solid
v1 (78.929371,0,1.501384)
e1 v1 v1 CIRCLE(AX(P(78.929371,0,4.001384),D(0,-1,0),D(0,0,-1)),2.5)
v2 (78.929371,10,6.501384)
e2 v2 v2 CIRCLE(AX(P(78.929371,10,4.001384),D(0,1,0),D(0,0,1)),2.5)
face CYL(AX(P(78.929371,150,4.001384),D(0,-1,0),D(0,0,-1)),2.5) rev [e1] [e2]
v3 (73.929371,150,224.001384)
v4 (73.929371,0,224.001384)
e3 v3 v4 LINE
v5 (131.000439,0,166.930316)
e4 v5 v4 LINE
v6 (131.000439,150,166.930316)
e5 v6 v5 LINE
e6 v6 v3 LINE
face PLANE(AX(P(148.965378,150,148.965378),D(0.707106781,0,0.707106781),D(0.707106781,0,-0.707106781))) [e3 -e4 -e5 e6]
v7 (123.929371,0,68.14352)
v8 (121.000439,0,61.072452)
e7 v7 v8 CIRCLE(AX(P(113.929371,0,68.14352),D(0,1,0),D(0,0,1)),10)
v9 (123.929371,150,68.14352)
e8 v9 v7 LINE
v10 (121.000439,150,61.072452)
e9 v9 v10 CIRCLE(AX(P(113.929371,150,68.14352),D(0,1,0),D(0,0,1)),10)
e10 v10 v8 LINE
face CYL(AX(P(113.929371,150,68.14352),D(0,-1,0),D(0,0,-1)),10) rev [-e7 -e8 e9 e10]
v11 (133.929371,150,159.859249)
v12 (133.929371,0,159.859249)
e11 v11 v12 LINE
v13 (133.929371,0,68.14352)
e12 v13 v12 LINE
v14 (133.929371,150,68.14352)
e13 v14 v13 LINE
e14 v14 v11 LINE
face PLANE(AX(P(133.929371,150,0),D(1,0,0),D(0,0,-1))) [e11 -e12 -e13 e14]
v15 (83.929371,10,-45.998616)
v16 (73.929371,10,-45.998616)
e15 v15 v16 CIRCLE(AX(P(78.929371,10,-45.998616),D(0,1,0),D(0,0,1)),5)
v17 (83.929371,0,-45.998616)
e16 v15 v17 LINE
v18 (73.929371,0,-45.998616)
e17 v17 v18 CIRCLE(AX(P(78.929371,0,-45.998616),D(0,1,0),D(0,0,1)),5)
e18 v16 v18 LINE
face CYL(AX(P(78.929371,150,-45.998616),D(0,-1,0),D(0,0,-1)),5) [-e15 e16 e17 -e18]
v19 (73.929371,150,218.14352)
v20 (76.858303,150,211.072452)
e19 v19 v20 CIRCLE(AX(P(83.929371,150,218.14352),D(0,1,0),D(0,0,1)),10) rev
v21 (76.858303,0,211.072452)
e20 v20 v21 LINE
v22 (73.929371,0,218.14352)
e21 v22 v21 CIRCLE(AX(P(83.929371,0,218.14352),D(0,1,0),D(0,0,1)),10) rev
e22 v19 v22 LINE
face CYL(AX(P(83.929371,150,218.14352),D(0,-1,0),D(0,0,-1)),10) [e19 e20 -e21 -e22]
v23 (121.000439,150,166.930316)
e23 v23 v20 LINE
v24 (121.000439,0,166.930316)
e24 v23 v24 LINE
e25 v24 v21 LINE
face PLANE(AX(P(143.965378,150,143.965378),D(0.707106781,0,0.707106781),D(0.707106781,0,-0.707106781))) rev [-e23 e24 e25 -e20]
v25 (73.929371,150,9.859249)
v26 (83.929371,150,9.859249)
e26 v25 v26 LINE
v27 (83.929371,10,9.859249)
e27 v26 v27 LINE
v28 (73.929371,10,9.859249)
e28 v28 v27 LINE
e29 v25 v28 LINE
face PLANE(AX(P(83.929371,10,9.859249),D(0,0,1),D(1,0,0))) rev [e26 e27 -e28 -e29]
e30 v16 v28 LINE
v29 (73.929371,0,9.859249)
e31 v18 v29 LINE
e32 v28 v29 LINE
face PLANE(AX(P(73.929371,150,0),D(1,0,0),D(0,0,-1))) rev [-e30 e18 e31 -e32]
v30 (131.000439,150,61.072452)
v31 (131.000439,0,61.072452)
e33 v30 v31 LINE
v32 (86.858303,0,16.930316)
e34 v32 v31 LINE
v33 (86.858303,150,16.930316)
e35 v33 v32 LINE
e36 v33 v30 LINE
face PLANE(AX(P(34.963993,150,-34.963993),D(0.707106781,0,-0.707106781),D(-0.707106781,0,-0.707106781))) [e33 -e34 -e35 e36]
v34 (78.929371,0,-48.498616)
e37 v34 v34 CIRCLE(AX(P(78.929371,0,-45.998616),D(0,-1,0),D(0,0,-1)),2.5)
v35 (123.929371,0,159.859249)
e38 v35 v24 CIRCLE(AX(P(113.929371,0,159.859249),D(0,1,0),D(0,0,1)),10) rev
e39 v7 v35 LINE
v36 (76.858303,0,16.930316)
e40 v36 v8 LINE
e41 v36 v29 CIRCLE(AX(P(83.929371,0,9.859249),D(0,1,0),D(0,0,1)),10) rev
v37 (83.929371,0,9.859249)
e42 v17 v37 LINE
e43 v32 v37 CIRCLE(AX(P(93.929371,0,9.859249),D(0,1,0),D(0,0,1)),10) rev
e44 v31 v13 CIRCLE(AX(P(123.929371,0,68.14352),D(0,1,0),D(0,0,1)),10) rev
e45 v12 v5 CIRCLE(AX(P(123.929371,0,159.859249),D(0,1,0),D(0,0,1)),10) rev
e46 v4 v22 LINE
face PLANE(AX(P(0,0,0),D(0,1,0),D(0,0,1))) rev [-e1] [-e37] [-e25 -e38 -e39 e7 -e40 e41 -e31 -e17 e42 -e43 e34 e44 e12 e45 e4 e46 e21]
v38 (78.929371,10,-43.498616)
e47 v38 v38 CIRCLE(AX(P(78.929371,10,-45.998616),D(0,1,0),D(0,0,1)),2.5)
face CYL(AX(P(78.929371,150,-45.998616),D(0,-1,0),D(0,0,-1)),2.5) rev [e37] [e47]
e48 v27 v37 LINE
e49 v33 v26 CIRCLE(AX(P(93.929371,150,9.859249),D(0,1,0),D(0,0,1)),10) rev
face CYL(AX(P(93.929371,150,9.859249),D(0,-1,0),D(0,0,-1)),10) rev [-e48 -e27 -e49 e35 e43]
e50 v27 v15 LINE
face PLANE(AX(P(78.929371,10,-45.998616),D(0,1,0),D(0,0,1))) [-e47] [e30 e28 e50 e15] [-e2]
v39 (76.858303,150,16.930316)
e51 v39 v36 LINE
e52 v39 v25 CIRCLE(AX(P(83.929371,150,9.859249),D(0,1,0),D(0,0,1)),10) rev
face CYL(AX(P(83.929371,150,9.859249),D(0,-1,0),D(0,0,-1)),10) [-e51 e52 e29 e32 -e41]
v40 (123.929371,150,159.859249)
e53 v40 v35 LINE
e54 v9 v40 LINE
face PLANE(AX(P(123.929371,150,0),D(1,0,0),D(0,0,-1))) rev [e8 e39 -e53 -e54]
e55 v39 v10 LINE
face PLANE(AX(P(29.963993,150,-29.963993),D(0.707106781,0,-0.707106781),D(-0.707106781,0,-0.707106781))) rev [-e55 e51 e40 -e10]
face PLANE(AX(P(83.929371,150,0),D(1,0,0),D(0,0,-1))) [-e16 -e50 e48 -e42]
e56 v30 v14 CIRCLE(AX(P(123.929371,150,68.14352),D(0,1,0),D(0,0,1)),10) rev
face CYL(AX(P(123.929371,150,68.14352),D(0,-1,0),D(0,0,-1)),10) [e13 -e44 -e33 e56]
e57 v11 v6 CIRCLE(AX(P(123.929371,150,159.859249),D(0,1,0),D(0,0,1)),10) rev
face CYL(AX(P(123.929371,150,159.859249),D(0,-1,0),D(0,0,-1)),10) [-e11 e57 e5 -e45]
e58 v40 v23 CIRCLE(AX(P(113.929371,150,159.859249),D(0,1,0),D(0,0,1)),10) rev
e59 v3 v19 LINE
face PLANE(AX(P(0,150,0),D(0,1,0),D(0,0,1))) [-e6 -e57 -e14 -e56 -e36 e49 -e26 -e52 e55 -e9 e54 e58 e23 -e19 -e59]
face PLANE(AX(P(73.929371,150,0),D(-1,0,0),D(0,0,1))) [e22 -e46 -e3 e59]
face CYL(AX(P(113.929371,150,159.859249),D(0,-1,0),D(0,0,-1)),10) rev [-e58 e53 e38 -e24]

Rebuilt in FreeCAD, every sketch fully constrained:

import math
import FreeCAD as App
import Part
import Sketcher
from FreeCAD import Vector
Q = App.Units.Quantity

doc = App.newDocument("Part")
body = doc.addObject("PartDesign::Body", "Body")

sketch1 = doc.addObject("Sketcher::SketchObject", "Sketch")
body.addObject(sketch1)
sketch1.AttachmentSupport = (doc.XZ_Plane, [""])
sketch1.MapMode = "FlatFace"
sketch1.addGeometry([
    Part.ArcOfCircle(Part.Circle(Vector(78.929371, -45.998616, 0), Vector(0, 0, 1), 5), math.radians(180), math.radians(360)),
    Part.LineSegment(Vector(73.929371, -45.998616, 0), Vector(73.929371, 9.859249, 0)),
    Part.ArcOfCircle(Part.Circle(Vector(83.929371, 9.859249, 0), Vector(0, 0, 1), 10), math.radians(135), math.radians(180)),
    Part.LineSegment(Vector(76.858303, 16.930316, 0), Vector(121.000439, 61.072452, 0)),
    Part.ArcOfCircle(Part.Circle(Vector(113.929371, 68.14352, 0), Vector(0, 0, 1), 10), math.radians(-45), math.radians(0)),
    Part.LineSegment(Vector(123.929371, 68.14352, 0), Vector(123.929371, 159.859249, 0)),
    Part.ArcOfCircle(Part.Circle(Vector(113.929371, 159.859249, 0), Vector(0, 0, 1), 10), math.radians(0), math.radians(45)),
    Part.LineSegment(Vector(121.000439, 166.930316, 0), Vector(76.858303, 211.072452, 0)),
    Part.ArcOfCircle(Part.Circle(Vector(83.929371, 218.14352, 0), Vector(0, 0, 1), 10), math.radians(180), math.radians(225)),
    Part.LineSegment(Vector(73.929371, 218.14352, 0), Vector(73.929371, 224.001384, 0)),
    Part.LineSegment(Vector(73.929371, 224.001384, 0), Vector(131.000439, 166.930316, 0)),
    Part.ArcOfCircle(Part.Circle(Vector(123.929371, 159.859249, 0), Vector(0, 0, 1), 10), math.radians(0), math.radians(45)),
    Part.LineSegment(Vector(133.929371, 159.859249, 0), Vector(133.929371, 68.14352, 0)),
    Part.ArcOfCircle(Part.Circle(Vector(123.929371, 68.14352, 0), Vector(0, 0, 1), 10), math.radians(-45), math.radians(0)),
    Part.LineSegment(Vector(131.000439, 61.072452, 0), Vector(86.858303, 16.930316, 0)),
    Part.ArcOfCircle(Part.Circle(Vector(93.929371, 9.859249, 0), Vector(0, 0, 1), 10), math.radians(135), math.radians(180)),
    Part.LineSegment(Vector(83.929371, 9.859249, 0), Vector(83.929371, -45.998616, 0)),
], False)
sketch1.addConstraint([
    Sketcher.Constraint("Tangent", 0, 1, 1, 1),
    Sketcher.Constraint("Tangent", 1, 2, 2, 2),
    Sketcher.Constraint("Tangent", 2, 1, 3, 1),
    Sketcher.Constraint("Tangent", 3, 2, 4, 1),
    Sketcher.Constraint("Tangent", 4, 2, 5, 1),
    Sketcher.Constraint("Tangent", 5, 2, 6, 1),
    Sketcher.Constraint("Tangent", 6, 2, 7, 1),
    Sketcher.Constraint("Tangent", 7, 2, 8, 2),
    Sketcher.Constraint("Tangent", 8, 1, 9, 1),
    Sketcher.Constraint("Coincident", 9, 2, 10, 1),
    Sketcher.Constraint("Tangent", 10, 2, 11, 2),
    Sketcher.Constraint("Tangent", 11, 1, 12, 1),
    Sketcher.Constraint("Tangent", 12, 2, 13, 2),
    Sketcher.Constraint("Tangent", 13, 1, 14, 1),
    Sketcher.Constraint("Tangent", 14, 2, 15, 1),
    Sketcher.Constraint("Tangent", 15, 2, 16, 1),
    Sketcher.Constraint("Tangent", 16, 2, 0, 2),
    Sketcher.Constraint("Vertical", 1),
    Sketcher.Constraint("Vertical", 5),
    Sketcher.Constraint("Vertical", 9),
    Sketcher.Constraint("Vertical", 12),
    Sketcher.Constraint("Vertical", 16),
    Sketcher.Constraint("Coincident", 4, 2, 13, 3),
    Sketcher.Constraint("Coincident", 5, 2, 11, 3),
    Sketcher.Constraint("Coincident", 15, 2, 2, 3),
    Sketcher.Constraint("Equal", 2, 4),
    Sketcher.Constraint("Equal", 4, 6),
    Sketcher.Constraint("Equal", 6, 8),
    Sketcher.Constraint("Equal", 8, 11),
    Sketcher.Constraint("Equal", 13, 15),
    Sketcher.Constraint("Perpendicular", 3, 7),
    Sketcher.Constraint("Parallel", 7, 10),
    Sketcher.Constraint("Vertical", 2, 3, 8, 3),
    Sketcher.Constraint("Vertical", 3, 2, 6, 2),
    Sketcher.Constraint("Radius", 0, Q("5 mm")),
    Sketcher.Constraint("DistanceX", 2, 3, 4, 3, Q("30 mm")),
    Sketcher.Constraint("DistanceY", 2, 3, 6, 3, Q("150 mm")),
    Sketcher.Constraint("DistanceY", 1, 1, 1, 2, Q("55.857864 mm")),
    Sketcher.Constraint("DistanceX", -1, 1, 0, 3, Q("78.929371 mm")),
    Sketcher.Constraint("DistanceY", -1, 1, 2, 3, Q("9.859249 mm")),
])
pad1 = doc.addObject("PartDesign::Pad", "Pad")
body.addObject(pad1)
pad1.Profile = sketch1
pad1.Length = 150
pad1.Reversed = True

sketch2 = doc.addObject("Sketcher::SketchObject", "Sketch001")
body.addObject(sketch2)
sketch2.AttachmentSupport = (doc.XZ_Plane, [""])
sketch2.MapMode = "FlatFace"
sketch2.AttachmentOffset = App.Placement(Vector(0, 0, -10), App.Rotation())
sketch2.addGeometry([
    Part.LineSegment(Vector(73.929371, 9.859249, 0), Vector(83.929371, 9.859249, 0)),
    Part.LineSegment(Vector(83.929371, 9.859249, 0), Vector(83.929371, -45.998616, 0)),
    Part.ArcOfCircle(Part.Circle(Vector(78.929371, -45.998616, 0), Vector(0, 0, 1), 5), math.radians(180), math.radians(360)),
    Part.LineSegment(Vector(73.929371, -45.998616, 0), Vector(73.929371, 9.859249, 0)),
], False)
sketch2.addConstraint([
    Sketcher.Constraint("Coincident", 0, 2, 1, 1),
    Sketcher.Constraint("Tangent", 1, 2, 2, 2),
    Sketcher.Constraint("Tangent", 2, 1, 3, 1),
    Sketcher.Constraint("Coincident", 3, 2, 0, 1),
    Sketcher.Constraint("Horizontal", 0),
    Sketcher.Constraint("Vertical", 1),
    Sketcher.Constraint("Vertical", 3),
    Sketcher.Constraint("Radius", 2, Q("5 mm")),
    Sketcher.Constraint("DistanceY", 1, 2, 1, 1, Q("55.857864 mm")),
    Sketcher.Constraint("DistanceX", -1, 1, 2, 3, Q("78.929371 mm")),
    Sketcher.Constraint("DistanceY", -1, 1, 0, 2, Q("9.859249 mm")),
])
pocket1 = doc.addObject("PartDesign::Pocket", "Pocket")
body.addObject(pocket1)
pocket1.Profile = sketch2
pocket1.Length = 140

sketch3 = doc.addObject("Sketcher::SketchObject", "Sketch002")
body.addObject(sketch3)
sketch3.AttachmentSupport = (doc.XZ_Plane, [""])
sketch3.MapMode = "FlatFace"
sketch3.addGeometry([
    Part.Circle(Vector(78.929371, -45.998616, 0), Vector(0, 0, 1), 2.5),
    Part.Circle(Vector(78.929371, 4.001384, 0), Vector(0, 0, 1), 2.5),
], False)
sketch3.addConstraint([
    Sketcher.Constraint("Equal", 0, 1),
    Sketcher.Constraint("Vertical", 0, 3, 1, 3),
    Sketcher.Constraint("Diameter", 0, Q("5 mm")),
    Sketcher.Constraint("DistanceY", 0, 3, 1, 3, Q("50 mm")),
    Sketcher.Constraint("DistanceX", -1, 1, 0, 3, Q("78.929371 mm")),
    Sketcher.Constraint("DistanceY", 0, 3, -1, 1, Q("45.998616 mm")),
])
pocket2 = doc.addObject("PartDesign::Pocket", "Pocket001")
body.addObject(pocket2)
pocket2.Profile = sketch3
pocket2.Type = "ThroughAll"

doc.recompute()
